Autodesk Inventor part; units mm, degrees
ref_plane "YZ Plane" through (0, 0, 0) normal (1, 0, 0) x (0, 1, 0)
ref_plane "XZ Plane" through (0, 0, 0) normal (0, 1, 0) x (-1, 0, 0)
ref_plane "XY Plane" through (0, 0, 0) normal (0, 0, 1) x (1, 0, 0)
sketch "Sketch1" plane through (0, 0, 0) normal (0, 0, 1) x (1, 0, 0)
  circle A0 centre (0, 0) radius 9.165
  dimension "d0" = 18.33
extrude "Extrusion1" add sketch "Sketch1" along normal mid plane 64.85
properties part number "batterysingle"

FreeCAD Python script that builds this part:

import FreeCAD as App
import Part
import Sketcher
from FreeCAD import Vector
Q = App.Units.Quantity

doc = App.newDocument("Part")
body = doc.addObject("PartDesign::Body", "Body")

# Sketch on XY plane
sketch1 = body.newObject("Sketcher::SketchObject", "Sketch")
sketch1.AttachmentSupport = (doc.getObject("XY_Plane"), [""])
sketch1.MapMode = "FlatFace"
sketch1.addGeometry(Part.Circle(Vector(0, 0, 0), Vector(0, 0, 1), 9), False)
sketch1.addConstraint([
    Sketcher.Constraint("Coincident", 0, 3, -1, 1),
    Sketcher.Constraint("Diameter", 0, Q("18.33 mm")),
])
pad1 = body.newObject("PartDesign::Pad", "Pad")
pad1.Profile = sketch1
pad1.Length = 64.85
pad1.Midplane = True

doc.recompute()
